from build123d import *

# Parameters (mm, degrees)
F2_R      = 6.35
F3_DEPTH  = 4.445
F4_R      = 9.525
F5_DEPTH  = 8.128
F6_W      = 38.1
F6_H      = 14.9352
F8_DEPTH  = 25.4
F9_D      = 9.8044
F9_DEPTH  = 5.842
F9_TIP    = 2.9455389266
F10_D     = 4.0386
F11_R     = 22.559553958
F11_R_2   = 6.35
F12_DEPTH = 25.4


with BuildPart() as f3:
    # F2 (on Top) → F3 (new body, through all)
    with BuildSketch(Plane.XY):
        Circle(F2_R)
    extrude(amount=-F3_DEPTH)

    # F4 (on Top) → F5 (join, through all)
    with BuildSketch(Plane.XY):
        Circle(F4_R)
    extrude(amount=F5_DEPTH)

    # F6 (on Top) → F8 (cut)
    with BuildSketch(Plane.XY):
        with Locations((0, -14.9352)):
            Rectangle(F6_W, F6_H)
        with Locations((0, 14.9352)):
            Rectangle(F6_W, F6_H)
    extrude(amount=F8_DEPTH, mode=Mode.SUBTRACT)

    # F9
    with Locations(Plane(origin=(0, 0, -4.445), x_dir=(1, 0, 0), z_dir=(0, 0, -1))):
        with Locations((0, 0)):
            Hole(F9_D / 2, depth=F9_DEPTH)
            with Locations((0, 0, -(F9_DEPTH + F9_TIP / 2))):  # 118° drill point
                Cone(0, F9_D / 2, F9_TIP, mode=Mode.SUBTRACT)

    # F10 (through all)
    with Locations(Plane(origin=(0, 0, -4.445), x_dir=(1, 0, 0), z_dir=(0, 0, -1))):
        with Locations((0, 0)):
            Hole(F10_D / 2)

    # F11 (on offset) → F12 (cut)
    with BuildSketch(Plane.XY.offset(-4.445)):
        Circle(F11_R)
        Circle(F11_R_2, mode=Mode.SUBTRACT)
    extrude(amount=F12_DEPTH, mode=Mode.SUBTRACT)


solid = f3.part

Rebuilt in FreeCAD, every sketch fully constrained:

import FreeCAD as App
import Part
import Sketcher
from FreeCAD import Vector
Q = App.Units.Quantity


def add_polygon(sketch, points):
    """Adds a closed chain of lines whose ends are joined by coincident constraints."""
    first, n = sketch.GeometryCount, len(points)
    for a, b in zip(points, points[1:] + points[:1]):
        sketch.addGeometry(Part.LineSegment(App.Vector(*a, 0), App.Vector(*b, 0)), False)
    for i in range(n):
        sketch.addConstraint(Sketcher.Constraint("Coincident", first + i, 2, first + (i + 1) % n, 1))

doc = App.newDocument("Part")
body = doc.addObject("PartDesign::Body", "Body")

sketch1 = body.newObject("Sketcher::SketchObject", "Sketch")
sketch1.AttachmentSupport = (doc.getObject("XY_Plane"), [""])
sketch1.MapMode = "FlatFace"
sketch1.addGeometry(Part.Circle(Vector(0, 0, 0), Vector(0, 0, 1), 6), False)
sketch1.addConstraint(Sketcher.Constraint("Coincident", 0, 3, -1, 1))
sketch1.addConstraint(Sketcher.Constraint("Diameter", 0, Q("0.5 in")))
pad1 = body.newObject("PartDesign::Pad", "Pad")
pad1.Profile = sketch1
pad1.Length = Q("0.175 in")
pad1.Reversed = True

sketch2 = body.newObject("Sketcher::SketchObject", "Sketch001")
sketch2.AttachmentSupport = (doc.getObject("XY_Plane"), [""])
sketch2.MapMode = "FlatFace"
sketch2.addGeometry(Part.Circle(Vector(0, 0, 0), Vector(0, 0, 1), 10), False)
sketch2.addConstraint(Sketcher.Constraint("Coincident", 0, 3, -1, 1))
sketch2.addConstraint(Sketcher.Constraint("Diameter", 0, Q("0.75 in")))
pad2 = body.newObject("PartDesign::Pad", "Pad001")
pad2.Profile = sketch2
pad2.Length = Q("0.32 in")

sketch3 = body.newObject("Sketcher::SketchObject", "Sketch002")
sketch3.AttachmentSupport = (doc.getObject("XY_Plane"), [""])
sketch3.MapMode = "FlatFace"
add_polygon(sketch3, [(-19, -7), (-19, -22), (19, -22), (19, -7)])
add_polygon(sketch3, [(-19, 22), (-19, 7), (19, 7), (19, 22)])
sketch3.addConstraint(Sketcher.Constraint("Vertical", 0))
sketch3.addConstraint(Sketcher.Constraint("Horizontal", 1))
sketch3.addConstraint(Sketcher.Constraint("Vertical", 2))
sketch3.addConstraint(Sketcher.Constraint("Horizontal", 3))
sketch3.addConstraint(Sketcher.Constraint("Vertical", 4))
sketch3.addConstraint(Sketcher.Constraint("Horizontal", 5))
sketch3.addConstraint(Sketcher.Constraint("Vertical", 6))
sketch3.addConstraint(Sketcher.Constraint("Horizontal", 7))
sketch3.addConstraint(Sketcher.Constraint("Symmetric", 2, 2, 4, 2, -1, 1))
sketch3.addConstraint(Sketcher.Constraint("Symmetric", 0, 2, 6, 2, -1, 1))
sketch3.addConstraint(Sketcher.Constraint("Vertical", 3, 2, 4, 2))
sketch3.addConstraint(Sketcher.Constraint("DistanceX", 1, 1, 1, 2, Q("1.5 in")))
sketch3.addConstraint(Sketcher.Constraint("DistanceY", 0, 2, 0, 1, Q("0.588 in")))
sketch3.addConstraint(Sketcher.Constraint("DistanceY", 0, 2, -1, 1, Q("0.882 in")))
pocket1 = body.newObject("PartDesign::Pocket", "Pocket")
pocket1.Profile = sketch3
pocket1.Length = Q("1 in")
pocket1.Reversed = True

sketch4 = body.newObject("Sketcher::SketchObject", "Sketch003")
sketch4.AttachmentSupport = (doc.getObject("XY_Plane"), [""])
sketch4.MapMode = "FlatFace"
sketch4.AttachmentOffset = App.Placement(Vector(0, 0, -0.175 * 25.4), App.Rotation())
sketch4.addGeometry(Part.Circle(Vector(0, 0, 0), Vector(0, 0, 1), 4.9), False)
sketch4.addConstraint(Sketcher.Constraint("Coincident", 0, 3, -1, 1))
sketch4.addConstraint(Sketcher.Constraint("Diameter", 0, Q("0.386 in")))
doc.recompute()
hole = body.newObject("PartDesign::Hole", "Hole")
hole.Profile = sketch4
hole.ThreadType = "None"
hole.Diameter = Q("0.386 in")
hole.DepthType = "Dimension"
hole.Depth = Q("0.23 in")
hole.DrillPoint = "Angled"
hole.DrillPointAngle = 118
hole.Reversed = True

sketch5 = body.newObject("Sketcher::SketchObject", "Sketch004")
sketch5.AttachmentSupport = (doc.getObject("XY_Plane"), [""])
sketch5.MapMode = "FlatFace"
sketch5.AttachmentOffset = App.Placement(Vector(0, 0, -0.175 * 25.4), App.Rotation())
sketch5.addGeometry(Part.Circle(Vector(0, 0, 0), Vector(0, 0, 1), 2), False)
sketch5.addConstraint(Sketcher.Constraint("Coincident", 0, 3, -1, 1))
sketch5.addConstraint(Sketcher.Constraint("Diameter", 0, Q("0.159 in")))
doc.recompute()
hole2 = body.newObject("PartDesign::Hole", "Hole001")
hole2.Profile = sketch5
hole2.ThreadType = "None"
hole2.Diameter = Q("0.159 in")
hole2.DepthType = "ThroughAll"
hole2.Reversed = True

sketch6 = body.newObject("Sketcher::SketchObject", "Sketch005")
sketch6.AttachmentSupport = (doc.getObject("XY_Plane"), [""])
sketch6.MapMode = "FlatFace"
sketch6.AttachmentOffset = App.Placement(Vector(0, 0, -0.175 * 25.4), App.Rotation())
sketch6.addGeometry(Part.Circle(Vector(0, 0, 0), Vector(0, 0, 1), 23), False)
sketch6.addGeometry(Part.Circle(Vector(0, 0, 0), Vector(0, 0, 1), 6), False)
sketch6.addConstraint(Sketcher.Constraint("Coincident", 0, 3, -1, 1))
sketch6.addConstraint(Sketcher.Constraint("Coincident", 1, 3, -1, 1))
sketch6.addConstraint(Sketcher.Constraint("Diameter", 1, Q("0.5 in")))
sketch6.addConstraint(Sketcher.Constraint("Diameter", 0, 45.119108))
pocket2 = body.newObject("PartDesign::Pocket", "Pocket001")
pocket2.Profile = sketch6
pocket2.Length = Q("1 in")
pocket2.Reversed = True

doc.recompute()
